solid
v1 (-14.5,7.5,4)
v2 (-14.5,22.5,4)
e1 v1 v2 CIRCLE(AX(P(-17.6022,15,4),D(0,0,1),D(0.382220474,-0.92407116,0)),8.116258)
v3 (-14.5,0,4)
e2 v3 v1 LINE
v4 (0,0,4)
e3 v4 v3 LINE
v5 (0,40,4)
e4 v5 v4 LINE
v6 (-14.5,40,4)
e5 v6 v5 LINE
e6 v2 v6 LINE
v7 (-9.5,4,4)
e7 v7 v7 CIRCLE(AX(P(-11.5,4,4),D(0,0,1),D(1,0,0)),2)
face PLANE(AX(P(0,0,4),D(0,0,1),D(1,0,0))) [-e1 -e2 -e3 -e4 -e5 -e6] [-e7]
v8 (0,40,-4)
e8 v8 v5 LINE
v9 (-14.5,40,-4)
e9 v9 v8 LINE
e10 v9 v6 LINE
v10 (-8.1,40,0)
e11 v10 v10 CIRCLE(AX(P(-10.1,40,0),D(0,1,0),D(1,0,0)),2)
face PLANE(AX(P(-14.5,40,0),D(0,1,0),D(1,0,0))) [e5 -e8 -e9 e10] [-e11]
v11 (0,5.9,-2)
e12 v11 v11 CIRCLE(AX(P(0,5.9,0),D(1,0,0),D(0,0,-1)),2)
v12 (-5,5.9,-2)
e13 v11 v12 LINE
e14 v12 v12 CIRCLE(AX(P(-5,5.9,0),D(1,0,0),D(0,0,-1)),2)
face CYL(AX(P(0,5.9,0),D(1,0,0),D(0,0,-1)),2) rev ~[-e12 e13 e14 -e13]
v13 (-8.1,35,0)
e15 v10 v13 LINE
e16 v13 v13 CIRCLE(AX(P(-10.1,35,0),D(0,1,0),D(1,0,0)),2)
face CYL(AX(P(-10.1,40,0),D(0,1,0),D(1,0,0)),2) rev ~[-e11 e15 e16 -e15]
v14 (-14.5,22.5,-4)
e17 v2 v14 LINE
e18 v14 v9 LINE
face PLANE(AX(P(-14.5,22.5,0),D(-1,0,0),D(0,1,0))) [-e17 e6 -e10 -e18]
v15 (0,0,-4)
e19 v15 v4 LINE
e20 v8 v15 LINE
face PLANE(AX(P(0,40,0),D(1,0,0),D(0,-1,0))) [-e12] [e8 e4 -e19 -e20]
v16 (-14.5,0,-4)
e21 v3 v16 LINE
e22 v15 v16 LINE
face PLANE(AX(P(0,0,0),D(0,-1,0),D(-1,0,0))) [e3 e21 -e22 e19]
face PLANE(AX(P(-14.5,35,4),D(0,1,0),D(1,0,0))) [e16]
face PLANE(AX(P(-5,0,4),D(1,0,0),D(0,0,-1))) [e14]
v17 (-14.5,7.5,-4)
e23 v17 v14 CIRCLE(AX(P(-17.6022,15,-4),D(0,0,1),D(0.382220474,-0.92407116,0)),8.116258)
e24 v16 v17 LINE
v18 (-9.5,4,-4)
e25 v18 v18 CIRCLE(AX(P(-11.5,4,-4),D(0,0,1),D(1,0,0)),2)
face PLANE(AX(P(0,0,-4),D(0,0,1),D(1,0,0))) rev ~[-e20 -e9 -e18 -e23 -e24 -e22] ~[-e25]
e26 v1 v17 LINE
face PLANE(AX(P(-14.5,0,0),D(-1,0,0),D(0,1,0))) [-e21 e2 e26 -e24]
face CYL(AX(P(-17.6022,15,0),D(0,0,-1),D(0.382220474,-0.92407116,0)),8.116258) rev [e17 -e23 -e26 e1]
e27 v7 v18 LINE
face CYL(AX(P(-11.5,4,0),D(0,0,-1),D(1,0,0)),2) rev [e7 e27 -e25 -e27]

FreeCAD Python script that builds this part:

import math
import FreeCAD as App
import Part
import Sketcher

V = App.Vector

doc = App.newDocument("Part")
body = doc.addObject("PartDesign::Body", "Body")

sketch1 = body.newObject("Sketcher::SketchObject", "Sketch")
sketch1.AttachmentSupport = (doc.getObject("XY_Plane"), [""])
sketch1.MapMode = "FlatFace"
sketch1.addGeometry([
    Part.LineSegment(V(-14.5, 0, 0), V(0, 0, 0)),
    Part.LineSegment(V(0, 0, 0), V(0, 40, 0)),
    Part.LineSegment(V(0, 40, 0), V(-14.5, 40, 0)),
    Part.LineSegment(V(-14.5, 40, 0), V(-14.5, 22.5, 0)),
    Part.ArcOfCircle(Part.Circle(V(-17.6, 15, 0), V(0, 0, 1), 8.1), math.radians(-68), math.radians(68)),
    Part.LineSegment(V(-14.5, 7.5, 0), V(-14.5, 0, 0)),
    Part.Circle(V(-11.5, 4, 0), V(0, 0, 1), 2),
], False)
sketch1.addConstraint([
    Sketcher.Constraint("Coincident", 0, 2, 1, 1),
    Sketcher.Constraint("Coincident", 1, 2, 2, 1),
    Sketcher.Constraint("Coincident", 2, 2, 3, 1),
    Sketcher.Constraint("Coincident", 3, 2, 4, 2),
    Sketcher.Constraint("Coincident", 4, 1, 5, 1),
    Sketcher.Constraint("Coincident", 5, 2, 0, 1),
    Sketcher.Constraint("Horizontal", 0),
    Sketcher.Constraint("Vertical", 1),
    Sketcher.Constraint("Horizontal", 2),
    Sketcher.Constraint("Vertical", 3),
    Sketcher.Constraint("Vertical", 5),
    Sketcher.Constraint("Coincident", 0, 2, -1, 1),
    Sketcher.Constraint("Vertical", 3, 2, 4, 1),
    Sketcher.Constraint("Diameter", 6, 4.0),
    Sketcher.Constraint("DistanceY", 1, 1, 1, 2, 40.0),
    Sketcher.Constraint("DistanceX", 0, 1, 0, 2, 14.5),
    Sketcher.Constraint("DistanceY", -1, 1, 4, 3, 15.0),
    Sketcher.Constraint("DistanceY", -1, 1, 6, 3, 4.0),
    Sketcher.Constraint("DistanceY", 4, 1, 3, 2, 15.0),
    Sketcher.Constraint("DistanceX", 6, 3, -1, 1, 11.5),
    Sketcher.Constraint("Radius", 4, 8.1163),
])
pad1 = body.newObject("PartDesign::Pad", "Pad")
pad1.Profile = sketch1
pad1.Length = 8
pad1.Midplane = True

sketch2 = body.newObject("Sketcher::SketchObject", "Sketch001")
sketch2.AttachmentSupport = (doc.getObject("YZ_Plane"), [""])
sketch2.MapMode = "FlatFace"
sketch2.addGeometry(Part.Circle(V(5.9, 0, 0), V(0, 0, 1), 2), False)
sketch2.addConstraint([
    Sketcher.Constraint("PointOnObject", 0, 3, -1),
    Sketcher.Constraint("Diameter", 0, 4.0),
    Sketcher.Constraint("DistanceX", -1, 1, 0, 3, 5.9),
])
pocket1 = body.newObject("PartDesign::Pocket", "Pocket")
pocket1.Profile = sketch2
pocket1.Length = 5

sketch3 = body.newObject("Sketcher::SketchObject", "Sketch002")
sketch3.AttachmentSupport = (doc.getObject("XZ_Plane"), [""])
sketch3.MapMode = "FlatFace"
sketch3.AttachmentOffset = App.Placement(V(0, 0, -40), App.Rotation())
sketch3.addGeometry(Part.Circle(V(-10.1, 0, 0), V(0, 0, 1), 2), False)
sketch3.addConstraint([
    Sketcher.Constraint("PointOnObject", 0, 3, -1),
    Sketcher.Constraint("Diameter", 0, 4.0),
    Sketcher.Constraint("DistanceX", 0, 3, -1, 1, 10.1),
])
pocket2 = body.newObject("PartDesign::Pocket", "Pocket001")
pocket2.Profile = sketch3
pocket2.Length = 5
pocket2.Reversed = True

doc.recompute()
